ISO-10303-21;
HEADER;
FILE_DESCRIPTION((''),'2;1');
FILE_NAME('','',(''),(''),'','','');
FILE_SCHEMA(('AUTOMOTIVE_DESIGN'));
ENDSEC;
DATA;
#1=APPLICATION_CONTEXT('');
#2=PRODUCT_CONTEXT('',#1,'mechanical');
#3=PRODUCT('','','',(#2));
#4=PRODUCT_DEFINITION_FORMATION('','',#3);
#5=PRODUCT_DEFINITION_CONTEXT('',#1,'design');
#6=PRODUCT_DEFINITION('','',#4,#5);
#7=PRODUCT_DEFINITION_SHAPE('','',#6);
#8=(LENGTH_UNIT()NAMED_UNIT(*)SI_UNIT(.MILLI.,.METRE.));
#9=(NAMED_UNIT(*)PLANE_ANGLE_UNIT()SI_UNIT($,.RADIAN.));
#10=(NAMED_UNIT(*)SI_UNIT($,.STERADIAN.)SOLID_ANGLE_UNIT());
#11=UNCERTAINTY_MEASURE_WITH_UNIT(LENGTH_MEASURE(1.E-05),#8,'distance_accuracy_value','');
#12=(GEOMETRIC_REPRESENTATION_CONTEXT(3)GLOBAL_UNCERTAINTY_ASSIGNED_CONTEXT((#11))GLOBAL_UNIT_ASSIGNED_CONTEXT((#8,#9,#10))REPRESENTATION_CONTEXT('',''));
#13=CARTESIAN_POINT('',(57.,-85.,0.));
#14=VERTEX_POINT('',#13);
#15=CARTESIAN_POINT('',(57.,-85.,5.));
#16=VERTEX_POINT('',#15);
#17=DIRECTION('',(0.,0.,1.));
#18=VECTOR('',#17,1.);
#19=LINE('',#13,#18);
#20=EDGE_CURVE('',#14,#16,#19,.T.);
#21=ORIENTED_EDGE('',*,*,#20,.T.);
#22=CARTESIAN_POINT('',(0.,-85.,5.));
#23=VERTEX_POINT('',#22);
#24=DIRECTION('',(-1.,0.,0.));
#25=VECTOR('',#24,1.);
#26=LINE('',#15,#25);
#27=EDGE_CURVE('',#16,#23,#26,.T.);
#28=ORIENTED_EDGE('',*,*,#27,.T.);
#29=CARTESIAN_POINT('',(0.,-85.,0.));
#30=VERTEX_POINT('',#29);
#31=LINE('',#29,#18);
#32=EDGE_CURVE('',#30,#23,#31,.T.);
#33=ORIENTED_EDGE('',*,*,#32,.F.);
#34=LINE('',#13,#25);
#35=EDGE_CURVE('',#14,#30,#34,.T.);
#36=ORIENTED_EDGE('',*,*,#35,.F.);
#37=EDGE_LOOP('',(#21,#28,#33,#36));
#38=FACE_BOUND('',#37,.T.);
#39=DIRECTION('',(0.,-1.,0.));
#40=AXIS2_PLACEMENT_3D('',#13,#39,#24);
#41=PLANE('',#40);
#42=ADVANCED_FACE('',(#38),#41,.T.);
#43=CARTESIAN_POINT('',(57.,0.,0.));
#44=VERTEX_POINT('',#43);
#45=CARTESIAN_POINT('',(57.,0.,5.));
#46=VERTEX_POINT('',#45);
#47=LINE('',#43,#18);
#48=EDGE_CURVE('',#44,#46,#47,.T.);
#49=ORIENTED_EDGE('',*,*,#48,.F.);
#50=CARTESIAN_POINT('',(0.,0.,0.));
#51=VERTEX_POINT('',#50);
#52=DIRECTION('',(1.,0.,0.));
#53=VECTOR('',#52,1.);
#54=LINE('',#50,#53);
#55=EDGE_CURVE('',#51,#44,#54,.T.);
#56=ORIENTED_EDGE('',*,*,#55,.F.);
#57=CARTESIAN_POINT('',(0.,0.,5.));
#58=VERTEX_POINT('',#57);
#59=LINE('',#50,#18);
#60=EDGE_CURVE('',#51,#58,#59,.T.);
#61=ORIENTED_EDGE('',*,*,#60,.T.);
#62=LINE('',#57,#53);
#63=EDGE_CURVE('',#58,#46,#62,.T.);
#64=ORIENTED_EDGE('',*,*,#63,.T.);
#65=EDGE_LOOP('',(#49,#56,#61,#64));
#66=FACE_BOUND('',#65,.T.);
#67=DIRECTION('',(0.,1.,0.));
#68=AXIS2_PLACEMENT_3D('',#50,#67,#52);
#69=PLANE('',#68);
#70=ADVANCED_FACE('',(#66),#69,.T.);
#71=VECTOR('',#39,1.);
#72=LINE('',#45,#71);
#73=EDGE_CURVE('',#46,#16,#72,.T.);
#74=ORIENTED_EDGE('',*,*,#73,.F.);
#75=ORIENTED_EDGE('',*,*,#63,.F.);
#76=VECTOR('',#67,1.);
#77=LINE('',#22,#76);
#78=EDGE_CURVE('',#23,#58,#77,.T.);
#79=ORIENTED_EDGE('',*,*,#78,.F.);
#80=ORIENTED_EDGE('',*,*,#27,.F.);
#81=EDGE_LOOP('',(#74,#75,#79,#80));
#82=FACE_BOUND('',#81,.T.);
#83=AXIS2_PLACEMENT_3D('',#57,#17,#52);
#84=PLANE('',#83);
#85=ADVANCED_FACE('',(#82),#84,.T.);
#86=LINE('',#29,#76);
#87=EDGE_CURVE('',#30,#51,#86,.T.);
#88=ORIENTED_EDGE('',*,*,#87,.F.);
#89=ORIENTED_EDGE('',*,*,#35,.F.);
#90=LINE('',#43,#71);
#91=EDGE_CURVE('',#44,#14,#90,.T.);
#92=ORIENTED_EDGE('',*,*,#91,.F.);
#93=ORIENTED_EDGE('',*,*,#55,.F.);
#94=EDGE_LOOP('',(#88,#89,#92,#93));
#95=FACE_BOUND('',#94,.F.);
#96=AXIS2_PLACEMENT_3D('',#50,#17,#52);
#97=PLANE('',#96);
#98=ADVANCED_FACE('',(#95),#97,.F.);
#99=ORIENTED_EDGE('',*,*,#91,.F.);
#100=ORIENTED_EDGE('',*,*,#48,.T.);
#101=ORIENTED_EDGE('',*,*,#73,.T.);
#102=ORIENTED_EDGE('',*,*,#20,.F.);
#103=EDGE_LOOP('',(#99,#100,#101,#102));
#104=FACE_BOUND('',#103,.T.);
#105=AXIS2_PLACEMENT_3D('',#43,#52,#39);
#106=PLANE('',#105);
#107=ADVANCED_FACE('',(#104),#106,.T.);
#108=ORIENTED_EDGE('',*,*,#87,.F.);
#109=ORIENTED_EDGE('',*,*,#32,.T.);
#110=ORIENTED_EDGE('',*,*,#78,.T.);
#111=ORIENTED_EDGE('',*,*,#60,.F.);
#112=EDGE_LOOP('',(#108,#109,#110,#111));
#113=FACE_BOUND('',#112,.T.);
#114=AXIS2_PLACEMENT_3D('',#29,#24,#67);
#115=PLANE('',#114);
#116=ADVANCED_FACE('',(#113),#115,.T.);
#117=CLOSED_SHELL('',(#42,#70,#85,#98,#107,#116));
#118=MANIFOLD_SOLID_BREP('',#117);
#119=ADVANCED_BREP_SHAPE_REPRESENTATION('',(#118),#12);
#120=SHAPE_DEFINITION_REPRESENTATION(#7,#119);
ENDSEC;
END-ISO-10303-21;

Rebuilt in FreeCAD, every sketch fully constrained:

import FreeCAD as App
import Part
import Sketcher
from FreeCAD import Vector
Q = App.Units.Quantity

doc = App.newDocument("Part")
body = doc.addObject("PartDesign::Body", "Body")

# Sketch on XY plane
sketch1 = doc.addObject("Sketcher::SketchObject", "Sketch")
body.addObject(sketch1)
sketch1.AttachmentSupport = (doc.XY_Plane, [""])
sketch1.MapMode = "FlatFace"
sketch1.addGeometry([
    Part.LineSegment(Vector(57, 0, 0), Vector(0, 0, 0)),
    Part.LineSegment(Vector(0, 0, 0), Vector(0, -85, 0)),
    Part.LineSegment(Vector(0, -85, 0), Vector(57, -85, 0)),
    Part.LineSegment(Vector(57, -85, 0), Vector(57, 0, 0)),
], False)
sketch1.addConstraint([
    Sketcher.Constraint("Coincident", 0, 2, 1, 1),
    Sketcher.Constraint("Coincident", 1, 2, 2, 1),
    Sketcher.Constraint("Coincident", 2, 2, 3, 1),
    Sketcher.Constraint("Coincident", 3, 2, 0, 1),
    Sketcher.Constraint("Horizontal", 0),
    Sketcher.Constraint("Vertical", 1),
    Sketcher.Constraint("Horizontal", 2),
    Sketcher.Constraint("Vertical", 3),
    Sketcher.Constraint("Coincident", 0, 2, -1, 1),
    Sketcher.Constraint("DistanceX", 0, 2, 0, 1, Q("57 mm")),
    Sketcher.Constraint("DistanceY", 1, 2, 1, 1, Q("85 mm")),
])
pad1 = doc.addObject("PartDesign::Pad", "Pad")
body.addObject(pad1)
pad1.Profile = sketch1
pad1.Length = 5

doc.recompute()
